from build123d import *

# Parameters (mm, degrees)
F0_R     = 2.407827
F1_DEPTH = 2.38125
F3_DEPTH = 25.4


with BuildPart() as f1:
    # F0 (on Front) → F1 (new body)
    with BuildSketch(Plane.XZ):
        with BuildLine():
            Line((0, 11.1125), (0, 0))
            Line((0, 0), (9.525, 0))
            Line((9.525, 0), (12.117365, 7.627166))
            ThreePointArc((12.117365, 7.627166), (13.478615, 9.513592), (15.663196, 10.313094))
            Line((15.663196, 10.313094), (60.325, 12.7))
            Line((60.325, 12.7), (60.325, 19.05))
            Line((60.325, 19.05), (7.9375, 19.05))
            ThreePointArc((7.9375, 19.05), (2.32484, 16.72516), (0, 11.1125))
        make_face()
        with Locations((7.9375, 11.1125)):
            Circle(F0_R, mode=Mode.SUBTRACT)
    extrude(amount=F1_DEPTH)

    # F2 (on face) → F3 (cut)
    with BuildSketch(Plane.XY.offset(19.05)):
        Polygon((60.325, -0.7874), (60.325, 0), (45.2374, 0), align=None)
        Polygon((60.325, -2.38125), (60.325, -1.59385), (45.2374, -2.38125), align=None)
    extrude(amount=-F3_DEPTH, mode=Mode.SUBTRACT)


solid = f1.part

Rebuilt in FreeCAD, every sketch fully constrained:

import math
import FreeCAD as App
import Part
import Sketcher
Q = App.Units.Quantity

doc = App.newDocument("Part")
body = doc.addObject("PartDesign::Body", "Body")

sketch1 = body.newObject("Sketcher::SketchObject", "Sketch")
sketch1.AttachmentSupport = (doc.getObject("XZ_Plane"), [""])
sketch1.MapMode = "FlatFace"
sketch1.addGeometry(Part.LineSegment(App.Vector(0, 11.1, 0), App.Vector(0, 0, 0)), False)
sketch1.addGeometry(Part.LineSegment(App.Vector(0, 0, 0), App.Vector(9.5, 0, 0)), False)
sketch1.addGeometry(Part.LineSegment(App.Vector(9.5, 0, 0), App.Vector(12.1, 7.6, 0)), False)
sketch1.addGeometry(Part.ArcOfCircle(Part.Circle(App.Vector(15.9, 6.4, 0), App.Vector(0, 0, 1), 4), math.radians(93), math.radians(161)), False)
sketch1.addGeometry(Part.LineSegment(App.Vector(15.7, 10.3, 0), App.Vector(60.3, 12.7, 0)), False)
sketch1.addGeometry(Part.LineSegment(App.Vector(60.3, 12.7, 0), App.Vector(60.3, 19.1, 0)), False)
sketch1.addGeometry(Part.LineSegment(App.Vector(60.3, 19.1, 0), App.Vector(7.9, 19.1, 0)), False)
sketch1.addGeometry(Part.ArcOfCircle(Part.Circle(App.Vector(7.9, 11.1, 0), App.Vector(0, 0, 1), 7.9), math.radians(90), math.radians(180)), False)
sketch1.addGeometry(Part.Circle(App.Vector(7.9, 11.1, 0), App.Vector(0, 0, 1), 2.4), False)
sketch1.addConstraint(Sketcher.Constraint("Coincident", 0, 2, 1, 1))
sketch1.addConstraint(Sketcher.Constraint("Coincident", 1, 2, 2, 1))
sketch1.addConstraint(Sketcher.Constraint("Tangent", 2, 2, 3, 2))
sketch1.addConstraint(Sketcher.Constraint("Tangent", 3, 1, 4, 1))
sketch1.addConstraint(Sketcher.Constraint("Coincident", 4, 2, 5, 1))
sketch1.addConstraint(Sketcher.Constraint("Coincident", 5, 2, 6, 1))
sketch1.addConstraint(Sketcher.Constraint("Tangent", 6, 2, 7, 1))
sketch1.addConstraint(Sketcher.Constraint("Tangent", 7, 2, 0, 1))
sketch1.addConstraint(Sketcher.Constraint("Vertical", 0))
sketch1.addConstraint(Sketcher.Constraint("Horizontal", 1))
sketch1.addConstraint(Sketcher.Constraint("Vertical", 5))
sketch1.addConstraint(Sketcher.Constraint("Horizontal", 6))
sketch1.addConstraint(Sketcher.Constraint("Coincident", 0, 2, -1, 1))
sketch1.addConstraint(Sketcher.Constraint("Coincident", 8, 3, 7, 3))
sketch1.addConstraint(Sketcher.Constraint("Radius", 3, Q("0.15625 in")))
sketch1.addConstraint(Sketcher.Constraint("Radius", 7, Q("0.3125 in")))
sketch1.addConstraint(Sketcher.Constraint("DistanceX", 1, 2, 4, 2, Q("2 in")))
sketch1.addConstraint(Sketcher.Constraint("DistanceY", 5, 1, 5, 2, Q("0.25 in")))
sketch1.addConstraint(Sketcher.Constraint("DistanceY", -1, 1, 4, 2, Q("0.5 in")))
sketch1.addConstraint(Sketcher.Constraint("DistanceY", 3, 3, 5, 2, Q("0.5 in")))
sketch1.addConstraint(Sketcher.Constraint("DistanceX", 1, 1, 1, 2, Q("0.375 in")))
sketch1.addConstraint(Sketcher.Constraint("DistanceX", 1, 2, 3, 3, Q("0.25 in")))
sketch1.addConstraint(Sketcher.Constraint("Diameter", 8, Q("4.815654 mm")))
pad1 = body.newObject("PartDesign::Pad", "Pad")
pad1.Profile = sketch1
pad1.Length = Q("0.09375 in")

sketch2 = body.newObject("Sketcher::SketchObject", "Sketch001")
sketch2.AttachmentSupport = (doc.getObject("XY_Plane"), [""])
sketch2.MapMode = "FlatFace"
sketch2.AttachmentOffset = App.Placement(App.Vector(0, 0, 0.75 * 25.4), App.Rotation())
sketch2.addGeometry(Part.LineSegment(App.Vector(60.3, -0.8, 0), App.Vector(60.3, 0, 0)), False)
sketch2.addGeometry(Part.LineSegment(App.Vector(60.3, 0, 0), App.Vector(45.2, 0, 0)), False)
sketch2.addGeometry(Part.LineSegment(App.Vector(45.2, 0, 0), App.Vector(60.3, -0.8, 0)), False)
sketch2.addGeometry(Part.LineSegment(App.Vector(60.3, -2.4, 0), App.Vector(60.3, -1.6, 0)), False)
sketch2.addGeometry(Part.LineSegment(App.Vector(60.3, -1.6, 0), App.Vector(45.2, -2.4, 0)), False)
sketch2.addGeometry(Part.LineSegment(App.Vector(45.2, -2.4, 0), App.Vector(60.3, -2.4, 0)), False)
sketch2.addConstraint(Sketcher.Constraint("Coincident", 0, 2, 1, 1))
sketch2.addConstraint(Sketcher.Constraint("Coincident", 1, 2, 2, 1))
sketch2.addConstraint(Sketcher.Constraint("Coincident", 2, 2, 0, 1))
sketch2.addConstraint(Sketcher.Constraint("Coincident", 3, 2, 4, 1))
sketch2.addConstraint(Sketcher.Constraint("Coincident", 4, 2, 5, 1))
sketch2.addConstraint(Sketcher.Constraint("Coincident", 5, 2, 3, 1))
sketch2.addConstraint(Sketcher.Constraint("Vertical", 0))
sketch2.addConstraint(Sketcher.Constraint("Horizontal", 1))
sketch2.addConstraint(Sketcher.Constraint("Vertical", 3))
sketch2.addConstraint(Sketcher.Constraint("Horizontal", 5))
sketch2.addConstraint(Sketcher.Constraint("PointOnObject", 0, 2, -1))
sketch2.addConstraint(Sketcher.Constraint("Vertical", 2, 2, 3, 2))
sketch2.addConstraint(Sketcher.Constraint("Vertical", 1, 2, 4, 2))
sketch2.addConstraint(Sketcher.Constraint("Equal", 0, 3))
sketch2.addConstraint(Sketcher.Constraint("DistanceX", 1, 2, 1, 1, Q("0.594 in")))
sketch2.addConstraint(Sketcher.Constraint("DistanceY", 0, 1, 0, 2, Q("0.031 in")))
sketch2.addConstraint(Sketcher.Constraint("DistanceX", -1, 1, 0, 2, Q("2.375 in")))
sketch2.addConstraint(Sketcher.Constraint("DistanceY", 4, 2, -1, 1, Q("0.09375 in")))
pocket1 = body.newObject("PartDesign::Pocket", "Pocket")
pocket1.Profile = sketch2
pocket1.Length = Q("1 in")

doc.recompute()
